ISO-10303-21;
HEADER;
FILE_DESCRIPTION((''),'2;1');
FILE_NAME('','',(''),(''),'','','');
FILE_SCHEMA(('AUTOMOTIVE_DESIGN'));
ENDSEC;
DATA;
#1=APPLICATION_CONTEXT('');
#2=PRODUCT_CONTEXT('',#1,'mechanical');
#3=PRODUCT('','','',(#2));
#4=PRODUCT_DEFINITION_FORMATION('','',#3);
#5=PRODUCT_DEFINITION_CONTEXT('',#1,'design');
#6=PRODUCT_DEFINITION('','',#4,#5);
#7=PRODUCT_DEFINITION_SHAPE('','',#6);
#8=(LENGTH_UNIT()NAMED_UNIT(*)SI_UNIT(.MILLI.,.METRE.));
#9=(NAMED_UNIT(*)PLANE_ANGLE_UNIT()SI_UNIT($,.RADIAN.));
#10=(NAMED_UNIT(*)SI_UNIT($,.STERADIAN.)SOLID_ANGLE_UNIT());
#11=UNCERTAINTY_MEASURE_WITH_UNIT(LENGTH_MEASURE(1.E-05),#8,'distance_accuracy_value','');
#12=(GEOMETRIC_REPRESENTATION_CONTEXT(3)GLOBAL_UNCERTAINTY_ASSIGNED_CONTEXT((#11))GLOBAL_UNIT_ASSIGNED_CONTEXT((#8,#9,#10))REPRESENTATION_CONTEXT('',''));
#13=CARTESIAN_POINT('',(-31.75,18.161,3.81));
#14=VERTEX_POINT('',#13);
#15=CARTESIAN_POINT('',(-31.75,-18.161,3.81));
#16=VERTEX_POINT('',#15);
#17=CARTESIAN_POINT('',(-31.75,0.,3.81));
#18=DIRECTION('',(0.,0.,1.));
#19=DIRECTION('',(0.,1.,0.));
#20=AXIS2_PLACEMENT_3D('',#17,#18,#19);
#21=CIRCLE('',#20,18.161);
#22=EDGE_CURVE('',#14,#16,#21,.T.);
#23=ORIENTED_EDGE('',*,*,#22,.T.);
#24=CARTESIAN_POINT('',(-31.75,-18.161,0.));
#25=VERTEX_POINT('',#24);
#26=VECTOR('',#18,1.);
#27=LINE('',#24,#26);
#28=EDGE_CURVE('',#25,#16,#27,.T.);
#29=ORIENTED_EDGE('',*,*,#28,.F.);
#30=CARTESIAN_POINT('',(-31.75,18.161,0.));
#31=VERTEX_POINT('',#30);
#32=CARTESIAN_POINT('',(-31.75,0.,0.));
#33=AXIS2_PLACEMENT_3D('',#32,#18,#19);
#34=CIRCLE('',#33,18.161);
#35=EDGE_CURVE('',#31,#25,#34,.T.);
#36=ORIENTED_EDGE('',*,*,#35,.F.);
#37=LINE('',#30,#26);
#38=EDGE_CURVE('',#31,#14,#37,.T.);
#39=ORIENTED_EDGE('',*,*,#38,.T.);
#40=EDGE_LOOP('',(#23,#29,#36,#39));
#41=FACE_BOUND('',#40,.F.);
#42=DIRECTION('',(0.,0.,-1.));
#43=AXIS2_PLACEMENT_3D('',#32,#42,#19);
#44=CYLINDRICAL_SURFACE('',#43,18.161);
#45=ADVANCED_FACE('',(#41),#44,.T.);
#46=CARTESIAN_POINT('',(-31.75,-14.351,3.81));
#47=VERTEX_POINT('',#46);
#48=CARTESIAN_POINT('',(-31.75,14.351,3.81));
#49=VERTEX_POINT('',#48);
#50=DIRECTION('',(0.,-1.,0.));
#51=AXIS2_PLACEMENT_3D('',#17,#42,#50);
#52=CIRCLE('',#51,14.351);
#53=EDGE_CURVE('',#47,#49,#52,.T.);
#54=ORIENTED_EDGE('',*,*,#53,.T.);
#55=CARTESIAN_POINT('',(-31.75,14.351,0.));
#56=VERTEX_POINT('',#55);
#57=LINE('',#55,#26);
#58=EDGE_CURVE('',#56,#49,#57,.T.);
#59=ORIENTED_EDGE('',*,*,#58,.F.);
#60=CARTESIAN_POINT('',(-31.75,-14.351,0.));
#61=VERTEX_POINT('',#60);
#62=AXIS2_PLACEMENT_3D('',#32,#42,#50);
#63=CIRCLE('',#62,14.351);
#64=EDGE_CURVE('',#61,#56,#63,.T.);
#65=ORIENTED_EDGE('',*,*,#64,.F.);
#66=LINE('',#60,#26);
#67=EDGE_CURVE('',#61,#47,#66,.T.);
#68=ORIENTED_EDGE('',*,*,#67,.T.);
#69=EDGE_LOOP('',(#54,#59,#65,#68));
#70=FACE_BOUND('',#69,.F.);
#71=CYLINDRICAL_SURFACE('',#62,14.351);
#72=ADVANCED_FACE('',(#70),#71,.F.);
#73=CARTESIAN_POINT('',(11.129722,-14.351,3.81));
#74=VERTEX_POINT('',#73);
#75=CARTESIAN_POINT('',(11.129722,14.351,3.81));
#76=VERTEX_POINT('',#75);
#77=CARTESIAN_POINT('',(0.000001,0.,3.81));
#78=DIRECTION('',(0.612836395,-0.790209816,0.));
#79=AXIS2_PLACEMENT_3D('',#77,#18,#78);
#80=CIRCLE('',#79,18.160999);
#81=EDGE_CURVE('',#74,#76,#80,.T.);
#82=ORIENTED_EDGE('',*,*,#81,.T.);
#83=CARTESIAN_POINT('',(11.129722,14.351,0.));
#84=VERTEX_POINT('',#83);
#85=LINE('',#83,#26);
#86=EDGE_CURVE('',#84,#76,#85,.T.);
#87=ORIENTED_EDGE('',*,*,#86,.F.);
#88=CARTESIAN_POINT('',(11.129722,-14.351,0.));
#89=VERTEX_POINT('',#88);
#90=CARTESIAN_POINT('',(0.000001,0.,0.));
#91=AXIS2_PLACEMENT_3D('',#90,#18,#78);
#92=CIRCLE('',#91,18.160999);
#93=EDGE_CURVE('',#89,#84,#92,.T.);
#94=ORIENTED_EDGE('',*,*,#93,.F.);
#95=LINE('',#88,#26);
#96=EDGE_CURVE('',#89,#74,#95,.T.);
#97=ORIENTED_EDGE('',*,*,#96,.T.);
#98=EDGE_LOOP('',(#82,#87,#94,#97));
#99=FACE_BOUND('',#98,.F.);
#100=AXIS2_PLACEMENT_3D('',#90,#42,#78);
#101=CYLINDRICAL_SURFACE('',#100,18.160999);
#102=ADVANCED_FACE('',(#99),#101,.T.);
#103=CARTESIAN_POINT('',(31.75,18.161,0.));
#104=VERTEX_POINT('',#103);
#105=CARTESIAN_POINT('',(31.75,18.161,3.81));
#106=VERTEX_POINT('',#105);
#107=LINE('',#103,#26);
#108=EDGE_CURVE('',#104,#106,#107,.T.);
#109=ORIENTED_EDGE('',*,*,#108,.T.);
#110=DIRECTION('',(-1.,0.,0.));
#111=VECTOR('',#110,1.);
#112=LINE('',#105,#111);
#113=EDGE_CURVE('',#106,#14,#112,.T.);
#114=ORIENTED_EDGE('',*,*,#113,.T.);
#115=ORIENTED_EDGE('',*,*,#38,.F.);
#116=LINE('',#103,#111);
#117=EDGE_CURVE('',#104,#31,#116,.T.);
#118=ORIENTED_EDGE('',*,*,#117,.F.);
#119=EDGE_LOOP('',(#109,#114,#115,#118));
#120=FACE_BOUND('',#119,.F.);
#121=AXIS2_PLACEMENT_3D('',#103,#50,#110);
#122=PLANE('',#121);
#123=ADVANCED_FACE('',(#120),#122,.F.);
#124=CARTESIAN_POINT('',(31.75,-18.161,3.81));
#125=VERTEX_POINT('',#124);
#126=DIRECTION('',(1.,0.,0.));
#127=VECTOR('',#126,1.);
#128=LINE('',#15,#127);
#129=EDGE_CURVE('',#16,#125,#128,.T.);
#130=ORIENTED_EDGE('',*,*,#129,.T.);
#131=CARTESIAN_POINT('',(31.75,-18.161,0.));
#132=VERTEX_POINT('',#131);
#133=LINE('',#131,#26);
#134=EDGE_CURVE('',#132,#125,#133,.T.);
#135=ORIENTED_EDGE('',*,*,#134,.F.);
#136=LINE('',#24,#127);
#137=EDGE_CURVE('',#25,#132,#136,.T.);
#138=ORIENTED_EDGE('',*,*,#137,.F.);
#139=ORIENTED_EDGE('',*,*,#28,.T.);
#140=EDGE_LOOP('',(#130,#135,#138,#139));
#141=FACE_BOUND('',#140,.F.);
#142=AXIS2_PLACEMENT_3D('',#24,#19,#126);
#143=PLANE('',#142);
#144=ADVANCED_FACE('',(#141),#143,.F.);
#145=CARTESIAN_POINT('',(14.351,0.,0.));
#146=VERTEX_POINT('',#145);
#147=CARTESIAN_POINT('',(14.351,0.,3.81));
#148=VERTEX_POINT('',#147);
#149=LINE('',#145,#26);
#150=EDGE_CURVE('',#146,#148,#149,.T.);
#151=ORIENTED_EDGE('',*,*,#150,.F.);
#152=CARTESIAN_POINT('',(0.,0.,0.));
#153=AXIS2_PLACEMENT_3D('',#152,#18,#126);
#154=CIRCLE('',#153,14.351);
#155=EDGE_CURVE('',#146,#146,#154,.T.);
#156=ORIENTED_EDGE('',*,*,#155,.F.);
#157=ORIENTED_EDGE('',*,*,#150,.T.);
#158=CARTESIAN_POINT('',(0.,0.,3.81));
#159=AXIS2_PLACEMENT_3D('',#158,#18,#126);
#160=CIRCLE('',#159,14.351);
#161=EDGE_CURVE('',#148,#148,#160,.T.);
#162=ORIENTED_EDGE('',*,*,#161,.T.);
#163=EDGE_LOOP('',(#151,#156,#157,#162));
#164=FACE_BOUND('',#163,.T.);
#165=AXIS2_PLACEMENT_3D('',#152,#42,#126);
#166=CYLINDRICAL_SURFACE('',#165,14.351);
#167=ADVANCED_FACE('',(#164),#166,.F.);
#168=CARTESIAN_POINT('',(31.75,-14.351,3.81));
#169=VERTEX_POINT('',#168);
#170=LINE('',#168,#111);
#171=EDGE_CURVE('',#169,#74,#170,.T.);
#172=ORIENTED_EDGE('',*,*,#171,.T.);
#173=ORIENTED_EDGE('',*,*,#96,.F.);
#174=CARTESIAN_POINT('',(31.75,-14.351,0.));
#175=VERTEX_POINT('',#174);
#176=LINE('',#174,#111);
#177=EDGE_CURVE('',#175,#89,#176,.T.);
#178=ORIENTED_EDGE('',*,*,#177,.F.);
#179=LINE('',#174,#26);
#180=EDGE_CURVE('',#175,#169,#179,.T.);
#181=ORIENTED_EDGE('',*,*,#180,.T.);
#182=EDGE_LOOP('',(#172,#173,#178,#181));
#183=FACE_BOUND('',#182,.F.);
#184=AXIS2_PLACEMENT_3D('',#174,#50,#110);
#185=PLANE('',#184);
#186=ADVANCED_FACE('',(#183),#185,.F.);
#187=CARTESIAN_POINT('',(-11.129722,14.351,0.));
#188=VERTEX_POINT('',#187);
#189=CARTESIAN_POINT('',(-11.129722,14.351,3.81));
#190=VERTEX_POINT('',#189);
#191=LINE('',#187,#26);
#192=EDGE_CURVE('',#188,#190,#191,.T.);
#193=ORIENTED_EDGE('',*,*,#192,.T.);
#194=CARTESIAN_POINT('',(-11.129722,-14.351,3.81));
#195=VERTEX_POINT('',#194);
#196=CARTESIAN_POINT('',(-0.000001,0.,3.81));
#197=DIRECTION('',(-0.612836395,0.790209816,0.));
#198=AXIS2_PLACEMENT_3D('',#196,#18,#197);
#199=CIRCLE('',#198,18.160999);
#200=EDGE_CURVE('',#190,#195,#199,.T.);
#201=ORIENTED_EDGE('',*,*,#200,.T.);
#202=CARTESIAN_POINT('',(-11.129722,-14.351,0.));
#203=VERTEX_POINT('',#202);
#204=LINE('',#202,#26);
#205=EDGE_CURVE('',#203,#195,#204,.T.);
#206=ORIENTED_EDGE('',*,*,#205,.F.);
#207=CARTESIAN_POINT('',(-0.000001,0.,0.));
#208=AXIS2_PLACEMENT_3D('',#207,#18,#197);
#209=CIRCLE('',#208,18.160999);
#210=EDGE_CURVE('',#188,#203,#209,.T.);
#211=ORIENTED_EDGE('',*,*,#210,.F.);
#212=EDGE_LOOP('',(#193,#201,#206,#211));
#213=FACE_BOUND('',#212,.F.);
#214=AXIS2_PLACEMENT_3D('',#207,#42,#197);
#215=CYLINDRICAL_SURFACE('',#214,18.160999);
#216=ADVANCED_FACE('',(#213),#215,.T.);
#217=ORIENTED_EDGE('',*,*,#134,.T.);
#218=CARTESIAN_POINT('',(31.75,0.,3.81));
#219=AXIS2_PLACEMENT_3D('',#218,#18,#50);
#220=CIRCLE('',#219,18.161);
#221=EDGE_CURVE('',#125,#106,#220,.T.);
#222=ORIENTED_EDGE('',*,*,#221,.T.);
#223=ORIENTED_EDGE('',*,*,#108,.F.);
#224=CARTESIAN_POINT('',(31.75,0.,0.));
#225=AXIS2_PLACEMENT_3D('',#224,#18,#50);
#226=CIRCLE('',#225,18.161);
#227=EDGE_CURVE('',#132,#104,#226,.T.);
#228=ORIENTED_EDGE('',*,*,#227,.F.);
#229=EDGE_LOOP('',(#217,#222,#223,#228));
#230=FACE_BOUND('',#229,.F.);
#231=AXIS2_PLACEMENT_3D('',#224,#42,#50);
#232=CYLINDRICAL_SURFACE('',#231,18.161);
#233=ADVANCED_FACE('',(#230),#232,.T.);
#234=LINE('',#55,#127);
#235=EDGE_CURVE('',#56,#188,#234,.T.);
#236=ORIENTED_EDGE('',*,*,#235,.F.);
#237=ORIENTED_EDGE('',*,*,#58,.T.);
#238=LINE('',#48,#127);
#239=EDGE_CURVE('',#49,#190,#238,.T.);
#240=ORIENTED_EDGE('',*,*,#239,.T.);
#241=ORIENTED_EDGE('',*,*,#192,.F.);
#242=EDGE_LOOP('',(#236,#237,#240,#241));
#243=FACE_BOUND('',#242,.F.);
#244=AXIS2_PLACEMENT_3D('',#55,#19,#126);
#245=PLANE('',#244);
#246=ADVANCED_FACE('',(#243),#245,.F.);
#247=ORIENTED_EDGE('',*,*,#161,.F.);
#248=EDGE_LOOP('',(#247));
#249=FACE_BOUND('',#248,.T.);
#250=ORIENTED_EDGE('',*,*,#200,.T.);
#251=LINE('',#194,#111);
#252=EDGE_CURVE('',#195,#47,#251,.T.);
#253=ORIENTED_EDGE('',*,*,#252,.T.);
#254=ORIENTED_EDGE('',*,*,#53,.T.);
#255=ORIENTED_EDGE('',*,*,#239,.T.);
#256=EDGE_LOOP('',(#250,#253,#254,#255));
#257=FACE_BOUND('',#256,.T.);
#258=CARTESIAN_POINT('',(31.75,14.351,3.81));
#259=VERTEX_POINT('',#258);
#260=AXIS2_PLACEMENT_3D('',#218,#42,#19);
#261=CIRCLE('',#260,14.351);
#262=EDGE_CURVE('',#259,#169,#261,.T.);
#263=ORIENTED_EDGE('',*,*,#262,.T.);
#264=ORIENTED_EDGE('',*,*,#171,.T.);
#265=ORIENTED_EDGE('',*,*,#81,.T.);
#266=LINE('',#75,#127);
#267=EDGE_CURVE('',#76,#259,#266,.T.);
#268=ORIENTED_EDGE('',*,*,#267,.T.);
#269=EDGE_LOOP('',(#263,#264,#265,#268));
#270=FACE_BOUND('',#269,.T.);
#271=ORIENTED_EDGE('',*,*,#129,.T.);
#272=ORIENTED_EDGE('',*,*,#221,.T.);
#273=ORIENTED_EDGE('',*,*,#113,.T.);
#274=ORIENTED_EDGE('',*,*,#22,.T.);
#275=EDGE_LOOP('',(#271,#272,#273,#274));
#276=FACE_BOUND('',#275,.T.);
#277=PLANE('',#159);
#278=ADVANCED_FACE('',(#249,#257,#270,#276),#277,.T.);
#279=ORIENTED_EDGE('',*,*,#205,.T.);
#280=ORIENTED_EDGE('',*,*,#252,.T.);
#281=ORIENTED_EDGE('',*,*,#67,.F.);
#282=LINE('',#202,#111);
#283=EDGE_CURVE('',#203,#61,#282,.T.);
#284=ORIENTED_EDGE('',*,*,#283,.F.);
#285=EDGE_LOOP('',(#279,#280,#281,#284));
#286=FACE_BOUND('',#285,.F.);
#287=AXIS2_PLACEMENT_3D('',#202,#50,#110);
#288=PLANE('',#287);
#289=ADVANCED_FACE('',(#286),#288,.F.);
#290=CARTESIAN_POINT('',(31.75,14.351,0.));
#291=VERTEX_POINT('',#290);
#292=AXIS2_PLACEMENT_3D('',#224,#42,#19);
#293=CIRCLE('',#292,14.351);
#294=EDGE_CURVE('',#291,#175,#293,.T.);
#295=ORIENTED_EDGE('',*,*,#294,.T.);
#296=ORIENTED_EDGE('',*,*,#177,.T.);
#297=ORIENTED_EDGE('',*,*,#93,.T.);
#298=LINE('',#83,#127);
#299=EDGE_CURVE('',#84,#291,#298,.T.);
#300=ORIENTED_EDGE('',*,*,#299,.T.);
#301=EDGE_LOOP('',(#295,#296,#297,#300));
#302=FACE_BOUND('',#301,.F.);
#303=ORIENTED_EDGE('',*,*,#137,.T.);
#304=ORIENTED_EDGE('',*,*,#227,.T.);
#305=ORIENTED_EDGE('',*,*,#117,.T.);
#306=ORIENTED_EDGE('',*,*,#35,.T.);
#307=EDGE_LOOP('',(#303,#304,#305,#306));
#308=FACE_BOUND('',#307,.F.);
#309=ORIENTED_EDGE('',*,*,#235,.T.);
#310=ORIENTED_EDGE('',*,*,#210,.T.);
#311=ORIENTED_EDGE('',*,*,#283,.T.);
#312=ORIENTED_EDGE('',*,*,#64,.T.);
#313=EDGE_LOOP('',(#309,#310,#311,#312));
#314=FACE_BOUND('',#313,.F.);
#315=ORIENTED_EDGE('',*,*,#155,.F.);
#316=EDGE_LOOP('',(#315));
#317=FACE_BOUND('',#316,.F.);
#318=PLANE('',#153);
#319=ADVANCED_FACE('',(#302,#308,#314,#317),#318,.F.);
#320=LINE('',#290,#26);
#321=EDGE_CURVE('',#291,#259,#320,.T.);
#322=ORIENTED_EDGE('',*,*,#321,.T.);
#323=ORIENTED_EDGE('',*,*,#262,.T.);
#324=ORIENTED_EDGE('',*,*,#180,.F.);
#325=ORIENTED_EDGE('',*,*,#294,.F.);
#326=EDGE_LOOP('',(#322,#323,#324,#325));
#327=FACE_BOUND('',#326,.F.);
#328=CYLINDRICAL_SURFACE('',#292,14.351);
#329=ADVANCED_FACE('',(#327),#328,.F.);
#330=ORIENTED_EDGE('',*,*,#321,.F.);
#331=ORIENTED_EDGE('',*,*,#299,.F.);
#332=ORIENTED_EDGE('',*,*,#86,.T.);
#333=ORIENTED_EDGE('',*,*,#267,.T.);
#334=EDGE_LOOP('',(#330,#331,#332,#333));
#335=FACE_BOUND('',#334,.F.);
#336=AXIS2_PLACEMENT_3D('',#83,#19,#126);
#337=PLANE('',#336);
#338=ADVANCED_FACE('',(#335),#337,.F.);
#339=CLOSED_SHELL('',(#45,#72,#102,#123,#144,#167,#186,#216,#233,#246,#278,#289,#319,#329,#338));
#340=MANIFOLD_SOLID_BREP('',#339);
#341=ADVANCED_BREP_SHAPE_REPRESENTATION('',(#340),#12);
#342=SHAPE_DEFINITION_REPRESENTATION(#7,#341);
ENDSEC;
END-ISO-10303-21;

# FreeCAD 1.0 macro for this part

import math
import FreeCAD as App
import Part
import Sketcher
from FreeCAD import Vector
Q = App.Units.Quantity

doc = App.newDocument("Part")
body = doc.addObject("PartDesign::Body", "Body")

sketch1 = doc.addObject("Sketcher::SketchObject", "Sketch")
body.addObject(sketch1)
sketch1.AttachmentSupport = (doc.XY_Plane, [""])
sketch1.MapMode = "FlatFace"
sketch1.addGeometry(Part.LineSegment(Vector(32, 18, 0), Vector(-32, 18, 0)), False)
sketch1.addGeometry(Part.ArcOfCircle(Part.Circle(Vector(-32, 0, 0), Vector(0, 0, 1), 18), math.radians(90), math.radians(270)), False)
sketch1.addGeometry(Part.LineSegment(Vector(-32, -18, 0), Vector(32, -18, 0)), False)
sketch1.addGeometry(Part.ArcOfCircle(Part.Circle(Vector(32, 0, 0), Vector(0, 0, 1), 18), math.radians(-90), math.radians(90)), False)
sketch1.addGeometry(Part.LineSegment(Vector(11, 14, 0), Vector(32, 14, 0)), False)
sketch1.addGeometry(Part.ArcOfCircle(Part.Circle(Vector(32, 0, 0), Vector(0, 0, 1), 14), math.radians(-90), math.radians(90)), False)
sketch1.addGeometry(Part.LineSegment(Vector(32, -14, 0), Vector(11, -14, 0)), False)
sketch1.addGeometry(Part.ArcOfCircle(Part.Circle(Vector(0, 0, 0), Vector(0, 0, 1), 18), math.radians(-52), math.radians(52)), False)
sketch1.addGeometry(Part.LineSegment(Vector(-32, 14, 0), Vector(-11, 14, 0)), False)
sketch1.addGeometry(Part.ArcOfCircle(Part.Circle(Vector(0, 0, 0), Vector(0, 0, 1), 18), math.radians(128), math.radians(232)), False)
sketch1.addGeometry(Part.LineSegment(Vector(-11, -14, 0), Vector(-32, -14, 0)), False)
sketch1.addGeometry(Part.ArcOfCircle(Part.Circle(Vector(-32, 0, 0), Vector(0, 0, 1), 14), math.radians(90), math.radians(270)), False)
sketch1.addGeometry(Part.Circle(Vector(0, 0, 0), Vector(0, 0, 1), 14), False)
sketch1.addConstraint(Sketcher.Constraint("Tangent", 0, 2, 1, 1))
sketch1.addConstraint(Sketcher.Constraint("Tangent", 1, 2, 2, 1))
sketch1.addConstraint(Sketcher.Constraint("Tangent", 2, 2, 3, 1))
sketch1.addConstraint(Sketcher.Constraint("Tangent", 3, 2, 0, 1))
sketch1.addConstraint(Sketcher.Constraint("Tangent", 4, 2, 5, 2))
sketch1.addConstraint(Sketcher.Constraint("Tangent", 5, 1, 6, 1))
sketch1.addConstraint(Sketcher.Constraint("Coincident", 6, 2, 7, 1))
sketch1.addConstraint(Sketcher.Constraint("Coincident", 7, 2, 4, 1))
sketch1.addConstraint(Sketcher.Constraint("Coincident", 8, 2, 9, 1))
sketch1.addConstraint(Sketcher.Constraint("Coincident", 9, 2, 10, 1))
sketch1.addConstraint(Sketcher.Constraint("Tangent", 10, 2, 11, 2))
sketch1.addConstraint(Sketcher.Constraint("Tangent", 11, 1, 8, 1))
sketch1.addConstraint(Sketcher.Constraint("Horizontal", 0))
sketch1.addConstraint(Sketcher.Constraint("Horizontal", 2))
sketch1.addConstraint(Sketcher.Constraint("Horizontal", 4))
sketch1.addConstraint(Sketcher.Constraint("Horizontal", 6))
sketch1.addConstraint(Sketcher.Constraint("Horizontal", 8))
sketch1.addConstraint(Sketcher.Constraint("Horizontal", 10))
sketch1.addConstraint(Sketcher.Constraint("Coincident", 7, 3, -1, 1))
sketch1.addConstraint(Sketcher.Constraint("Coincident", 9, 3, -1, 1))
sketch1.addConstraint(Sketcher.Constraint("Coincident", 12, 3, -1, 1))
sketch1.addConstraint(Sketcher.Constraint("Coincident", 5, 3, 3, 3))
sketch1.addConstraint(Sketcher.Constraint("Coincident", 11, 3, 1, 3))
sketch1.addConstraint(Sketcher.Constraint("Equal", 3, 7))
sketch1.addConstraint(Sketcher.Constraint("Equal", 7, 9))
sketch1.addConstraint(Sketcher.Constraint("Equal", 5, 11))
sketch1.addConstraint(Sketcher.Constraint("Equal", 11, 12))
sketch1.addConstraint(Sketcher.Constraint("Symmetric", 1, 3, 3, 3, -1, 1))
sketch1.addConstraint(Sketcher.Constraint("Diameter", 12, Q("1.13 in")))
sketch1.addConstraint(Sketcher.Constraint("DistanceX", 0, 2, 0, 1, Q("2.5 in")))
sketch1.addConstraint(Sketcher.Constraint("Radius", 1, Q("0.715 in")))
pad1 = doc.addObject("PartDesign::Pad", "Pad")
body.addObject(pad1)
pad1.Profile = sketch1
pad1.Length = Q("0.15 in")

doc.recompute()
